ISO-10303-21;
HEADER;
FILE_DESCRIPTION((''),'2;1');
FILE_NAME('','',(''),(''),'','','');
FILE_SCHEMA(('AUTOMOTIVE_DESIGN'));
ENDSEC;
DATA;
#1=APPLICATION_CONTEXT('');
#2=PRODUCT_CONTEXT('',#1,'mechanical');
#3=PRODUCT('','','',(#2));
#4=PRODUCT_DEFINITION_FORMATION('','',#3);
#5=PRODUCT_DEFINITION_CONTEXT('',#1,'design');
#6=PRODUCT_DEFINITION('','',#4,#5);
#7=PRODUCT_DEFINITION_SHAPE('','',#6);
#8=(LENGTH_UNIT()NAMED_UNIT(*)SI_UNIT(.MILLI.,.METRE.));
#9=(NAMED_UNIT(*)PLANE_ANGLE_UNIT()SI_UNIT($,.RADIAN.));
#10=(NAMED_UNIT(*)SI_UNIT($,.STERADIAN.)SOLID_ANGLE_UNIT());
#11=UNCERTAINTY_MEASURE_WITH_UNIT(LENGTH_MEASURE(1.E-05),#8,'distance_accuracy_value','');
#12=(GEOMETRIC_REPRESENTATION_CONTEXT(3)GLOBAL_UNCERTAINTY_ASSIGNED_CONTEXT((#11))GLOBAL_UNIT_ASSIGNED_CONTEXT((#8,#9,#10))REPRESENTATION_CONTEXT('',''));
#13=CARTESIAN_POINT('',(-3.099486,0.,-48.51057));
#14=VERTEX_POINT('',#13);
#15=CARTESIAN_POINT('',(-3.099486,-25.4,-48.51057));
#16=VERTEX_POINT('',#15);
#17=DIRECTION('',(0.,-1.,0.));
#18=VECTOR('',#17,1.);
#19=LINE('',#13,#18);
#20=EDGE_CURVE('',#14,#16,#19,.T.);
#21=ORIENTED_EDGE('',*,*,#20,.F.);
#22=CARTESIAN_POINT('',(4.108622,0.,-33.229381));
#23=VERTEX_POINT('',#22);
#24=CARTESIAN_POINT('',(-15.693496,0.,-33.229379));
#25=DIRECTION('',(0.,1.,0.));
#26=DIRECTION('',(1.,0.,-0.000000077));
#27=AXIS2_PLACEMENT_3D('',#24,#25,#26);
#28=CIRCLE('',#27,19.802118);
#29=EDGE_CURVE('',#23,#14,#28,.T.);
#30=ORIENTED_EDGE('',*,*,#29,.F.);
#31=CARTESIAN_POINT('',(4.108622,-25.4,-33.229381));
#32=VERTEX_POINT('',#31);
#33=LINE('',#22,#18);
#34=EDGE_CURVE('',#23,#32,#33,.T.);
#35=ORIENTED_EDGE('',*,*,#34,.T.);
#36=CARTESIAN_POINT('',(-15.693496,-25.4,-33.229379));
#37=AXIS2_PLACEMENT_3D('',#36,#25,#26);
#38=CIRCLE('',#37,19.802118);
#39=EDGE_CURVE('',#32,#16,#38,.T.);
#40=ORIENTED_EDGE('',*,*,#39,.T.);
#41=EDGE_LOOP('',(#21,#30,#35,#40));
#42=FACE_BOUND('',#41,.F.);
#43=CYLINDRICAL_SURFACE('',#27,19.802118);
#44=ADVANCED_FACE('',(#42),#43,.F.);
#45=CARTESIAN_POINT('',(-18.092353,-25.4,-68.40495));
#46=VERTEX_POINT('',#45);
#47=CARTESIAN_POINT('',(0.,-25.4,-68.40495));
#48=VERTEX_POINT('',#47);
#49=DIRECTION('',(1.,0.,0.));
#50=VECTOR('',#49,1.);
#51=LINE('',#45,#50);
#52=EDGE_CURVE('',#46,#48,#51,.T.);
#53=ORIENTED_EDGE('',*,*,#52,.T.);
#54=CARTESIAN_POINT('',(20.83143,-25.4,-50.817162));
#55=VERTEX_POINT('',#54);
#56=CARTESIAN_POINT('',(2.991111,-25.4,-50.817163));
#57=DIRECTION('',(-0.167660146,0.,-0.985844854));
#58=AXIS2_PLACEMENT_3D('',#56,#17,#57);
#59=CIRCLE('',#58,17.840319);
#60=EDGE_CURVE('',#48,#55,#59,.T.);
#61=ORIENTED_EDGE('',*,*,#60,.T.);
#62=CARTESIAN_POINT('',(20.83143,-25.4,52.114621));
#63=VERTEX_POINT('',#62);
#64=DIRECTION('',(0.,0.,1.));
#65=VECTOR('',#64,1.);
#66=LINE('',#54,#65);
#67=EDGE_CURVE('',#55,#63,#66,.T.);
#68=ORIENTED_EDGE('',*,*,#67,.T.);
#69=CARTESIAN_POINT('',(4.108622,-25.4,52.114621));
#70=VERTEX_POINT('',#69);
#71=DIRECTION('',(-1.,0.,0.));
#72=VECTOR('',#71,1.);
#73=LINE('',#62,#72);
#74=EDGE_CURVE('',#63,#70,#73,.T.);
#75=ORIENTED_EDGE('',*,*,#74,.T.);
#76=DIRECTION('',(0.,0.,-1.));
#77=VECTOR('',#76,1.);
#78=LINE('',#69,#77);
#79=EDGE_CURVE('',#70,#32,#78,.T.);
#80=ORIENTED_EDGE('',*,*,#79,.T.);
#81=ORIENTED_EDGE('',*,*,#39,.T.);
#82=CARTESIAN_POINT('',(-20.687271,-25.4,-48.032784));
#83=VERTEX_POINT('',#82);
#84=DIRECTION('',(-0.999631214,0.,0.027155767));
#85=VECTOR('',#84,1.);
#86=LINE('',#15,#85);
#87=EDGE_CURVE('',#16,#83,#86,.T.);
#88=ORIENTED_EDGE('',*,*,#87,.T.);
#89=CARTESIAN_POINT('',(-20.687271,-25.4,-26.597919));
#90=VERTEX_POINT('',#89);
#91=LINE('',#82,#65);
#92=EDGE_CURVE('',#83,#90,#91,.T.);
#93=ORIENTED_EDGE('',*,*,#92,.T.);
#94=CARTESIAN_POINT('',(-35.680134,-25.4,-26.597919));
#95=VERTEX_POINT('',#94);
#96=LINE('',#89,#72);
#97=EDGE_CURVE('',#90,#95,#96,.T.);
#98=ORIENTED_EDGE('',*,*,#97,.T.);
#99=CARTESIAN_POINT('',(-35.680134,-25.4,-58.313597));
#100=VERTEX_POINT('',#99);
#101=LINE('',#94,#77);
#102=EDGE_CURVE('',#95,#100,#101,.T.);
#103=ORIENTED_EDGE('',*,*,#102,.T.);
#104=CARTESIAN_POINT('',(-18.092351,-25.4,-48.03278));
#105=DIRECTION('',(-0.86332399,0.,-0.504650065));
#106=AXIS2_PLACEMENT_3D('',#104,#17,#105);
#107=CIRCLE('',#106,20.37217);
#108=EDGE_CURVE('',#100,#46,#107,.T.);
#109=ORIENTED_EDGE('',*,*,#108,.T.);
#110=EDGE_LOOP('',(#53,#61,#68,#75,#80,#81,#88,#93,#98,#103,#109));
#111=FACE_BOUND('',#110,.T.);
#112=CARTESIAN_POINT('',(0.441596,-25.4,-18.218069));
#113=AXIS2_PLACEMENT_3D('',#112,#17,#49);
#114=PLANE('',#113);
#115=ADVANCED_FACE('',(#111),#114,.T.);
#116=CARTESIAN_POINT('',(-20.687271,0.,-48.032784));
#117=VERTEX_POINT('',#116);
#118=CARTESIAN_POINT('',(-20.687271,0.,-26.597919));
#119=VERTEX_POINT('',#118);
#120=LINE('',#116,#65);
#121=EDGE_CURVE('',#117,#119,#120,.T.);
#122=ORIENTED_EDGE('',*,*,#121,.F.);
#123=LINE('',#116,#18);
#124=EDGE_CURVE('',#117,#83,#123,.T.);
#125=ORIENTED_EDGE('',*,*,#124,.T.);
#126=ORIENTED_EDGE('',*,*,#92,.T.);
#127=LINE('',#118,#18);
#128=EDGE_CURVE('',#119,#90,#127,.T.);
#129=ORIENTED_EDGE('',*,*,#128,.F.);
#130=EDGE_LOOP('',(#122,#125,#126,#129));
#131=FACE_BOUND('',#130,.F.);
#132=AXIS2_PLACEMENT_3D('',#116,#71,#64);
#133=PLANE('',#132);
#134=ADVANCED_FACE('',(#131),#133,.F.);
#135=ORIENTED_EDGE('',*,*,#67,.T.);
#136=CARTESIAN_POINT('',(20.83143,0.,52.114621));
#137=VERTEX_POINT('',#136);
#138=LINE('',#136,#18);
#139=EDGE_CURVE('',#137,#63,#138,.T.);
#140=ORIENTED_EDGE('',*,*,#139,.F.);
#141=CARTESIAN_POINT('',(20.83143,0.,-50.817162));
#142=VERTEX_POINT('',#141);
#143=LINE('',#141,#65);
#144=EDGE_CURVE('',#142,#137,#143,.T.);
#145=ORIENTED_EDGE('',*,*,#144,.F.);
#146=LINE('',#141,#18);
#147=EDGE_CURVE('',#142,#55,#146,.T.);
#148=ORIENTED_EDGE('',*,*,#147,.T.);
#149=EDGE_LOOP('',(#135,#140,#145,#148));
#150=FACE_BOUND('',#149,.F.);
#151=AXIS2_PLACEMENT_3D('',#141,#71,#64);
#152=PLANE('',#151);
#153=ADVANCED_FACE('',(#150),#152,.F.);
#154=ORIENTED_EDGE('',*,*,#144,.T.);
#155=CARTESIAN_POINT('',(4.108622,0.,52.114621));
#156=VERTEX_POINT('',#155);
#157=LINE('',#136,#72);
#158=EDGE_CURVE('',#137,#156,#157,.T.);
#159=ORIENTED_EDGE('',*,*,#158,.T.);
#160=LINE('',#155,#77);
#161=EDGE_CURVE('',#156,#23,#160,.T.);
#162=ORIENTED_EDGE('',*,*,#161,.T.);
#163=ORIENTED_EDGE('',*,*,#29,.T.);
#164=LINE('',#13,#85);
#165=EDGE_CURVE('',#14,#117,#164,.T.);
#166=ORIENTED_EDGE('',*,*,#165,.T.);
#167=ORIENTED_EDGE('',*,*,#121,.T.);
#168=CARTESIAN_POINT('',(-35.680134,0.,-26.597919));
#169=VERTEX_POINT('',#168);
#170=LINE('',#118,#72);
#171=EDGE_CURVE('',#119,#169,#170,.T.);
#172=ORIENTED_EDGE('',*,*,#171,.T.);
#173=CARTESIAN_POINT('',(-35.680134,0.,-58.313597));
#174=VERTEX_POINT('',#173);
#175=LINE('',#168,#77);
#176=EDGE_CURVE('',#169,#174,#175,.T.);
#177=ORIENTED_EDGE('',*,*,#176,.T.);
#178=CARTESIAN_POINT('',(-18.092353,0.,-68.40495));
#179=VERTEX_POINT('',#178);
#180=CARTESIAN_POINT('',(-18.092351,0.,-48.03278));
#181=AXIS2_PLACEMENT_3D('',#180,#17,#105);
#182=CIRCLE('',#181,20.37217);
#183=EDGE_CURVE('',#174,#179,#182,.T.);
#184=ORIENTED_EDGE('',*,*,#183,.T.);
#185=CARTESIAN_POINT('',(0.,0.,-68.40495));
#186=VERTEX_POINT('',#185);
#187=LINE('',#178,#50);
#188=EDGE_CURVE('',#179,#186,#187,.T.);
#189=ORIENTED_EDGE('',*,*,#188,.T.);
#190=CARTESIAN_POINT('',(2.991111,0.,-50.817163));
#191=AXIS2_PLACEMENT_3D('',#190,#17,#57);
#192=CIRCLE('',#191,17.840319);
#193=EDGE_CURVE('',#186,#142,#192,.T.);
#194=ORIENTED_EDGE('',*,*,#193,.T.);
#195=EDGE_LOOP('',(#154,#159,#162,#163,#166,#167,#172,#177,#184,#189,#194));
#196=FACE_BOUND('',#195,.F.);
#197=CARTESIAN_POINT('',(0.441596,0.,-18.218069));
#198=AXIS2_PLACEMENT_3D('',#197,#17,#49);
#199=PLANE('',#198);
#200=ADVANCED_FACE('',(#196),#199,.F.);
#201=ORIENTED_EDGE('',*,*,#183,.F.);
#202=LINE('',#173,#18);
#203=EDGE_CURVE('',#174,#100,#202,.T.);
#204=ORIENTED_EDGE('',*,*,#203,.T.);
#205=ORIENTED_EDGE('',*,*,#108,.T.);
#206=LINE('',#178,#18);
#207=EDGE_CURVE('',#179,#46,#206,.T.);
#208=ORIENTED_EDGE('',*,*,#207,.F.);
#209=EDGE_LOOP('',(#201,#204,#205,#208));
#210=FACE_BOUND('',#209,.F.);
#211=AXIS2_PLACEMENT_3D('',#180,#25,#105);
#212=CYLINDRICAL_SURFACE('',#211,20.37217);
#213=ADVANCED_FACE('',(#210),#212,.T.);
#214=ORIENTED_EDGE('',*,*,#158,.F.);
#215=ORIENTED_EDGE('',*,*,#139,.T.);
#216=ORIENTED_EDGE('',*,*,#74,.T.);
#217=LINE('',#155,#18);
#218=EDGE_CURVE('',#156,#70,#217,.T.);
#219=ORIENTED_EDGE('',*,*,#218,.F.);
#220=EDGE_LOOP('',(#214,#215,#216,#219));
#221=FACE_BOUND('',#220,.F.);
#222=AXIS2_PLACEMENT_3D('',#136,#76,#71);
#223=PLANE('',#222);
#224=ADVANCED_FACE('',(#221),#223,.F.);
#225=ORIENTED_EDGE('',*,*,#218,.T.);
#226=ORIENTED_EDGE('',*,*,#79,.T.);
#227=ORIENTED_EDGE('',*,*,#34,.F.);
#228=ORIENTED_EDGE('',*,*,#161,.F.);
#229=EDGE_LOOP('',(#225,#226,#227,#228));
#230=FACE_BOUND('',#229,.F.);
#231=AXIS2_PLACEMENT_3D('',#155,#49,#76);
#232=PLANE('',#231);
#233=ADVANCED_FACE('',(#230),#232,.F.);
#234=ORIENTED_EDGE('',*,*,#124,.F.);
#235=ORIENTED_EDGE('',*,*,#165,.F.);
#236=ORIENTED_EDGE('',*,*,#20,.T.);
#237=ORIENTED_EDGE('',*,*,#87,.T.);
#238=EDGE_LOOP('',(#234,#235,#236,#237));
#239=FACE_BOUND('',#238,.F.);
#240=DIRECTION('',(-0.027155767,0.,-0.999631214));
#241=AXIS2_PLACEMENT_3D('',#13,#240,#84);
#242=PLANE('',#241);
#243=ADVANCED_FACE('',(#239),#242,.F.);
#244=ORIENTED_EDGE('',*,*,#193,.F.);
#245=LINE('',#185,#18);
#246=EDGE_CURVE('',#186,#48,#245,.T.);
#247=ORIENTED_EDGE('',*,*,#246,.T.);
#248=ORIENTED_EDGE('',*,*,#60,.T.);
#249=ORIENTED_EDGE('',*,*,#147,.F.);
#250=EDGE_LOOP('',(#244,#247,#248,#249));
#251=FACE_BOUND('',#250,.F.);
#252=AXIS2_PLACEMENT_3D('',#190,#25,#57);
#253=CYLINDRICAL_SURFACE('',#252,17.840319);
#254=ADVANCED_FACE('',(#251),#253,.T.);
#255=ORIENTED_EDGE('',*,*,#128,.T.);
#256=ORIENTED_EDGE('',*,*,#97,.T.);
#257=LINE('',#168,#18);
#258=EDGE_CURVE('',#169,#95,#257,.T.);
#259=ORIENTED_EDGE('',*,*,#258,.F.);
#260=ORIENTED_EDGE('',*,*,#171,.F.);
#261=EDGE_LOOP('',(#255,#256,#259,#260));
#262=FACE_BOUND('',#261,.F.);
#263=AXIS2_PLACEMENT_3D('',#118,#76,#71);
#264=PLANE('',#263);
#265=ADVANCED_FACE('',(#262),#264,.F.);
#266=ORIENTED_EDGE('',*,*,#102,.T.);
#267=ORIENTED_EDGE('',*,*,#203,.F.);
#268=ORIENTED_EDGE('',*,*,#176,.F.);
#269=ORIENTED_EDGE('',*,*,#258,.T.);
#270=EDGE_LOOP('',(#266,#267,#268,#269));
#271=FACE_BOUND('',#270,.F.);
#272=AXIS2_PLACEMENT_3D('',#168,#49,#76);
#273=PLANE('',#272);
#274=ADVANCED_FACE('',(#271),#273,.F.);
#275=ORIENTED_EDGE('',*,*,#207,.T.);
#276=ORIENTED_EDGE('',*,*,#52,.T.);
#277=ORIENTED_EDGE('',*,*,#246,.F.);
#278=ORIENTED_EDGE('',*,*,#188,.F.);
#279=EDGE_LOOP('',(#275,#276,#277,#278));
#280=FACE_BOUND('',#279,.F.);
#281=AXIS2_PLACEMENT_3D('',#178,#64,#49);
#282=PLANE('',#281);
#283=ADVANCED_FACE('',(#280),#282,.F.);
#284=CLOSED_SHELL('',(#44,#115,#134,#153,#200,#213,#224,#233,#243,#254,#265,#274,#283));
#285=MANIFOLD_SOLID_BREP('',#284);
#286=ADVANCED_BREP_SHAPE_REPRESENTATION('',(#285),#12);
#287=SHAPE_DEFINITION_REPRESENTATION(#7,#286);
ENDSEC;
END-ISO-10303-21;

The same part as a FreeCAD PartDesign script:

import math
import FreeCAD as App
import Part
import Sketcher
from FreeCAD import Vector
Q = App.Units.Quantity

doc = App.newDocument("Part")
params = doc.addObject("Spreadsheet::Sheet", "Params")
for row, (alias, value) in enumerate([
    ("sketch1_height", "3.3600001 in"),
    ("pad1_length", "1 in"),
], start=1):
    params.set(f"A{row}", alias)
    params.set(f"B{row}", "=" + value)
    params.setAlias(f"B{row}", alias)

body = doc.addObject("PartDesign::Body", "Body")

# Sketch on XZ plane
sketch1 = body.newObject("Sketcher::SketchObject", "Sketch")
sketch1.AttachmentSupport = (doc.getObject("XZ_Plane"), [""])
sketch1.MapMode = "FlatFace"
sketch1.addGeometry([
    Part.LineSegment(Vector(20.83143, -50.817162, 0), Vector(20.83143, 52.114621, 0)),  # 0
    Part.LineSegment(Vector(20.83143, 52.114621, 0), Vector(4.108622, 52.114621, 0)),  # 1
    Part.LineSegment(Vector(4.108622, 52.114621, 0), Vector(4.108622, -33.229381, 0)),  # 2
    Part.ArcOfCircle(Part.Circle(Vector(-15.693496, -33.229379, 0), Vector(0, 0, 1), 19.802118), math.radians(-50.506322), math.radians(-0.000004)),  # 3
    Part.LineSegment(Vector(-3.099486, -48.51057, 0), Vector(-20.687271, -48.032784, 0)),  # 4
    Part.LineSegment(Vector(-20.687271, -48.032784, 0), Vector(-20.687271, -26.597919, 0)),  # 5
    Part.LineSegment(Vector(-20.687271, -26.597919, 0), Vector(-35.680134, -26.597919, 0)),  # 6
    Part.LineSegment(Vector(-35.680134, -26.597919, 0), Vector(-35.680134, -58.313597, 0)),  # 7
    Part.ArcOfCircle(Part.Circle(Vector(-18.092351, -48.03278, 0), Vector(0, 0, 1), 20.37217), math.radians(-149.691874), math.radians(-90.000005)),  # 8
    Part.LineSegment(Vector(-18.092353, -68.40495, 0), Vector(0, -68.40495, 0)),  # 9
    Part.ArcOfCircle(Part.Circle(Vector(2.991111, -50.817163, 0), Vector(0, 0, 1), 17.840319), math.radians(-99.651803), math.radians(0.000003)),  # 10
], False)
sketch1.addConstraint([
    Sketcher.Constraint("Coincident", 0, 2, 1, 1),
    Sketcher.Constraint("Coincident", 1, 2, 2, 1),
    Sketcher.Constraint("Coincident", 2, 2, 3, 2),
    Sketcher.Constraint("Coincident", 3, 1, 4, 1),
    Sketcher.Constraint("Coincident", 4, 2, 5, 1),
    Sketcher.Constraint("Coincident", 5, 2, 6, 1),
    Sketcher.Constraint("Coincident", 6, 2, 7, 1),
    Sketcher.Constraint("Coincident", 7, 2, 8, 1),
    Sketcher.Constraint("Coincident", 8, 2, 9, 1),
    Sketcher.Constraint("Coincident", 9, 2, 10, 1),
    Sketcher.Constraint("Coincident", 10, 2, 0, 1),
    Sketcher.Constraint("Vertical", 0),
    Sketcher.Constraint("Horizontal", 1),
    Sketcher.Constraint("Vertical", 2),
    Sketcher.Constraint("Vertical", 5),
    Sketcher.Constraint("Horizontal", 6),
    Sketcher.Constraint("Vertical", 7),
    Sketcher.Constraint("Horizontal", 9),
    Sketcher.Constraint("PointOnObject", 9, 2, -2),
    Sketcher.Constraint("DistanceY", 2, 2, 2, 1, Q("3.3600001 in")),
    Sketcher.Constraint("DistanceY", 3, 3, 0, 2, Q("3.36 in")),
    Sketcher.Constraint("Radius", 8, 20.37217),
    Sketcher.Constraint("Radius", 10, 17.840319),
    Sketcher.Constraint("Radius", 3, 19.802118),
    Sketcher.Constraint("DistanceX", 1, 2, 1, 1, 16.722808),
    Sketcher.Constraint("DistanceY", 7, 2, 7, 1, 31.715678),
    Sketcher.Constraint("DistanceY", 8, 3, 3, 3, 14.803401),
    Sketcher.Constraint("DistanceX", 6, 2, 6, 1, 14.992863),
    Sketcher.Constraint("DistanceX", 9, 1, 9, 2, 18.092353),
    Sketcher.Constraint("DistanceY", 0, 1, 0, 2, 102.931783),
    Sketcher.Constraint("DistanceY", 5, 1, 5, 2, 21.434865),
    Sketcher.Constraint("DistanceY", 3, 3, -1, 1, 33.229379),
    Sketcher.Constraint("DistanceX", 8, 3, -1, 1, 18.092351),
    Sketcher.Constraint("DistanceX", -1, 1, 10, 3, 2.991111),
    Sketcher.Constraint("DistanceY", 3, 1, -1, 1, 48.51057),
    Sketcher.Constraint("DistanceX", 4, 2, -1, 1, 20.687271),
])
sketch1.setExpression("Constraints[19]", "Params.sketch1_height")
pad1 = body.newObject("PartDesign::Pad", "Pad")
pad1.Profile = sketch1
pad1.setExpression("Length", "Params.pad1_length")

doc.recompute()
